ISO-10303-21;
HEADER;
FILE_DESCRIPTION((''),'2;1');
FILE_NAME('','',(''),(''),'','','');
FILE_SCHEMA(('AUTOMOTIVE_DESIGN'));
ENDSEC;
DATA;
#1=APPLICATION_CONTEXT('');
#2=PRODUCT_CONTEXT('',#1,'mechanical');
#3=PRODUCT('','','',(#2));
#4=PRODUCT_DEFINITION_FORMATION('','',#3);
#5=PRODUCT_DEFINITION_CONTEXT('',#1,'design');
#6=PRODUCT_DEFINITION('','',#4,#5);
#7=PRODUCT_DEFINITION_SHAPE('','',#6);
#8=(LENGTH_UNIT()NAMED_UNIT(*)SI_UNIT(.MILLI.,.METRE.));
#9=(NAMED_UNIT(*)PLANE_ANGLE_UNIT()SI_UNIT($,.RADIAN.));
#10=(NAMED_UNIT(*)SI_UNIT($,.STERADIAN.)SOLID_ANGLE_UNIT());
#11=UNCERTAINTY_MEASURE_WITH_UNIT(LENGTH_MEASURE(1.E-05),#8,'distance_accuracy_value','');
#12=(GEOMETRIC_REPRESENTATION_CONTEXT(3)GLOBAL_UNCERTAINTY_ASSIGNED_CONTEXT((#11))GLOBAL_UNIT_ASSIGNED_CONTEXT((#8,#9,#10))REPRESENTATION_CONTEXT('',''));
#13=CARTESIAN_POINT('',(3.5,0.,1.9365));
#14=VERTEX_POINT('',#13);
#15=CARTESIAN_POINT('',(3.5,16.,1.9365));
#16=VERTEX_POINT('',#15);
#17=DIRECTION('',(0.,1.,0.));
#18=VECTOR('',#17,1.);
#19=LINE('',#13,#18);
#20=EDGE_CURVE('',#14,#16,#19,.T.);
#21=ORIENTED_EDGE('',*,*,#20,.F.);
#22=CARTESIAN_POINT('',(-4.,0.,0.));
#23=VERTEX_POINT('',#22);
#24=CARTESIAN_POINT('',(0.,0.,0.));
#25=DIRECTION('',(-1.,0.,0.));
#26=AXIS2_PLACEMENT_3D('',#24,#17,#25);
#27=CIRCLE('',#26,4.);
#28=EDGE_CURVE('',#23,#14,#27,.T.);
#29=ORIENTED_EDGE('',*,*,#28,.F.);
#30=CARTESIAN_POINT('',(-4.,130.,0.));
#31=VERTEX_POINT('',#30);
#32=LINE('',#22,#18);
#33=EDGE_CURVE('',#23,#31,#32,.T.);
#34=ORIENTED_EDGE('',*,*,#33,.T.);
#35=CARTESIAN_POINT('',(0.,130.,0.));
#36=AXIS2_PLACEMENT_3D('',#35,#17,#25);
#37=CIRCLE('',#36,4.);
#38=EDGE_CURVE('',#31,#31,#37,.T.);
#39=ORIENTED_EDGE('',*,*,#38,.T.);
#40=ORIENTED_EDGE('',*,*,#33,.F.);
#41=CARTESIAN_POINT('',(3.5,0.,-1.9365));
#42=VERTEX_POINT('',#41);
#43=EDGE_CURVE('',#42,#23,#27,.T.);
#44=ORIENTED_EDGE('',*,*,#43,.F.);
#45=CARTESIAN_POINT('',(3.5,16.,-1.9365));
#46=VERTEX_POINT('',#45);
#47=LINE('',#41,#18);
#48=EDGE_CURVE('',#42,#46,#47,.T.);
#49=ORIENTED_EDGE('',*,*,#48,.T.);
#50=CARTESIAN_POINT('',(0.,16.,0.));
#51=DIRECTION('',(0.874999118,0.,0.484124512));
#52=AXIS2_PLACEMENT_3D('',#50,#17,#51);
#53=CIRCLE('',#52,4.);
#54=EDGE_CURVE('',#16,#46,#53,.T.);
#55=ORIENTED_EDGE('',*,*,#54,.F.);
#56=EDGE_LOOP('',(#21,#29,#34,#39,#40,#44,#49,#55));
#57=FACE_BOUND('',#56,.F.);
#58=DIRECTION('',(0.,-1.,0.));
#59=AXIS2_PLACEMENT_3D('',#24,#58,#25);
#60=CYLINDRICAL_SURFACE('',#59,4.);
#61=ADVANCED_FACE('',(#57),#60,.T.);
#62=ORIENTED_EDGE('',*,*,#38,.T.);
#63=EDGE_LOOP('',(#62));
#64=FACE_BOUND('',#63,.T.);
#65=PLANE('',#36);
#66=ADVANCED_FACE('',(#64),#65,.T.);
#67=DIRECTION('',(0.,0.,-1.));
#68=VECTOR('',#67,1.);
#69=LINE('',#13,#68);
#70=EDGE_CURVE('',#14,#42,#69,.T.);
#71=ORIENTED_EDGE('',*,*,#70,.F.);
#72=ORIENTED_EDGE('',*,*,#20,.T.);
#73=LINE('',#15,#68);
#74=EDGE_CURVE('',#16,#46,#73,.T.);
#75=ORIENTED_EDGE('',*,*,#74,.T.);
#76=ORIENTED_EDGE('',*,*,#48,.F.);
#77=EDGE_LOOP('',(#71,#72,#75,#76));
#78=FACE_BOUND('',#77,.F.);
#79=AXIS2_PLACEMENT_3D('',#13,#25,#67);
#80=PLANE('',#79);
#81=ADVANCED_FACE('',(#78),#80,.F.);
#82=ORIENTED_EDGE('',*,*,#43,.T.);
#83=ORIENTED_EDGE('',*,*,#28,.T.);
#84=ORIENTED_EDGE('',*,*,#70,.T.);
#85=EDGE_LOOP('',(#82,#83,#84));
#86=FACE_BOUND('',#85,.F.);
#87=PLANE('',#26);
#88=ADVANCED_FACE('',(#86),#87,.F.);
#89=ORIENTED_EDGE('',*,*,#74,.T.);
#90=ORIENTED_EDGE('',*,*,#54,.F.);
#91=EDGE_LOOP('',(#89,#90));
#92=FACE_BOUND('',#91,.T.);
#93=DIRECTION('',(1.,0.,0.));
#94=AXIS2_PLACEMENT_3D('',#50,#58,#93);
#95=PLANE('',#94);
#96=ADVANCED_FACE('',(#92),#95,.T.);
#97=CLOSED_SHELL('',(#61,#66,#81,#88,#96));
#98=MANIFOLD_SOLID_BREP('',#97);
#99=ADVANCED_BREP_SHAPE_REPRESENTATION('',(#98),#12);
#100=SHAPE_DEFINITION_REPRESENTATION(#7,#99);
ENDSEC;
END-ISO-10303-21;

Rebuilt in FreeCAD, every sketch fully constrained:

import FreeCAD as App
import Part
import Sketcher

doc = App.newDocument("Part")
params = doc.addObject("Spreadsheet::Sheet", "Params")
for row, (alias, value) in enumerate([
    ("sketch1_diameter", "8 mm"),
    ("pad1_length", "130 mm"),
    ("sketch2_width", "0.5 mm"),
    ("pocket1_length", "16 mm"),
], start=1):
    params.set(f"A{row}", alias)
    params.set(f"B{row}", "=" + value)
    params.setAlias(f"B{row}", alias)

body = doc.addObject("PartDesign::Body", "Body")

sketch1 = doc.addObject("Sketcher::SketchObject", "Sketch")
body.addObject(sketch1)
sketch1.AttachmentSupport = (doc.XZ_Plane, [""])
sketch1.MapMode = "FlatFace"
sketch1.addGeometry(Part.Circle(App.Vector(0, 0, 0), App.Vector(0, 0, 1), 4), False)
sketch1.addConstraint([
    Sketcher.Constraint("Coincident", 0, 3, -1, 1),
    Sketcher.Constraint("Diameter", 0, 8.0),
])
sketch1.setExpression("Constraints[1]", "Params.sketch1_diameter")
pad1 = doc.addObject("PartDesign::Pad", "Pad")
body.addObject(pad1)
pad1.Profile = sketch1
pad1.setExpression("Length", "Params.pad1_length")
pad1.Reversed = True

sketch2 = doc.addObject("Sketcher::SketchObject", "Sketch001")
body.addObject(sketch2)
sketch2.AttachmentSupport = (doc.XZ_Plane, [""])
sketch2.MapMode = "FlatFace"
sketch2.addGeometry([
    Part.LineSegment(App.Vector(3.5, 1.9, 0), App.Vector(3.5, -1.9, 0)),
    Part.LineSegment(App.Vector(3.5, -1.9, 0), App.Vector(4, -1.9, 0)),
    Part.LineSegment(App.Vector(4, -1.9, 0), App.Vector(4, 1.9, 0)),
    Part.LineSegment(App.Vector(4, 1.9, 0), App.Vector(3.5, 1.9, 0)),
], False)
sketch2.addConstraint([
    Sketcher.Constraint("Coincident", 0, 2, 1, 1),
    Sketcher.Constraint("Coincident", 1, 2, 2, 1),
    Sketcher.Constraint("Coincident", 2, 2, 3, 1),
    Sketcher.Constraint("Coincident", 3, 2, 0, 1),
    Sketcher.Constraint("Vertical", 0),
    Sketcher.Constraint("Horizontal", 1),
    Sketcher.Constraint("Vertical", 2),
    Sketcher.Constraint("Horizontal", 3),
    Sketcher.Constraint("DistanceX", 1, 1, 1, 2, 0.5),
    Sketcher.Constraint("DistanceX", -1, 1, 1, 2, 4.0),
    Sketcher.Constraint("DistanceY", 0, 2, 0, 1, 3.873),
    Sketcher.Constraint("DistanceY", 0, 2, -1, 1, 1.9365),
])
sketch2.setExpression("Constraints[8]", "Params.sketch2_width")
pocket1 = doc.addObject("PartDesign::Pocket", "Pocket")
body.addObject(pocket1)
pocket1.Profile = sketch2
pocket1.setExpression("Length", "Params.pocket1_length")

doc.recompute()
